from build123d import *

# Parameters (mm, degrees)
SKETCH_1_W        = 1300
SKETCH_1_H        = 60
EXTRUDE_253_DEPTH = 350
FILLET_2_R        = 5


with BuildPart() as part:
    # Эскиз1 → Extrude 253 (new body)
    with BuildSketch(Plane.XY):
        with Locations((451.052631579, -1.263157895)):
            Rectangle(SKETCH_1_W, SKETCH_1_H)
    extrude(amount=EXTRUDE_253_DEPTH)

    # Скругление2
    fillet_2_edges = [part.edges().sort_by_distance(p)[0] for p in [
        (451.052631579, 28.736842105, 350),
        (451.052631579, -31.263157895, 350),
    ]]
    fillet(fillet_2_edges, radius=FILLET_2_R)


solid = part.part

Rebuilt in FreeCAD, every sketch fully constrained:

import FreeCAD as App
import Part
import Sketcher

V = App.Vector
Q = App.Units.Quantity


def edges_at(feature, points):
    """Names of the edges that pass closest to the given points."""
    edges = feature.Shape.Edges
    near = lambda p: min(range(len(edges)), key=lambda i: edges[i].distToShape(Part.Vertex(*p))[0])
    return sorted({f"Edge{near(p) + 1}" for p in points})


def add_polygon(sketch, points):
    """Adds a closed chain of lines whose ends are joined by coincident constraints."""
    first, n = sketch.GeometryCount, len(points)
    for a, b in zip(points, points[1:] + points[:1]):
        sketch.addGeometry(Part.LineSegment(App.Vector(*a, 0), App.Vector(*b, 0)), False)
    for i in range(n):
        sketch.addConstraint(Sketcher.Constraint("Coincident", first + i, 2, first + (i + 1) % n, 1))

doc = App.newDocument("Part")
body = doc.addObject("PartDesign::Body", "Body")

# Sketch on XY plane
sketch1 = doc.addObject("Sketcher::SketchObject", "Sketch")
body.addObject(sketch1)
sketch1.AttachmentSupport = (doc.XY_Plane, [""])
sketch1.MapMode = "FlatFace"
add_polygon(sketch1, [(-199, 29), (-199, -31), (1101, -31), (1101, 29)])  # lines 0-3
sketch1.addConstraint([
    Sketcher.Constraint("Vertical", 0),
    Sketcher.Constraint("Horizontal", 1),
    Sketcher.Constraint("Vertical", 2),
    Sketcher.Constraint("Horizontal", 3),
    Sketcher.Constraint("DistanceX", 1, 1, 1, 2, Q("1300 mm")),
    Sketcher.Constraint("DistanceY", 0, 2, 0, 1, Q("60 mm")),
    Sketcher.Constraint("DistanceX", 0, 2, -1, 1, Q("198.947368 mm")),
    Sketcher.Constraint("DistanceY", 0, 2, -1, 1, Q("31.263158 mm")),
])
pad1 = doc.addObject("PartDesign::Pad", "Pad")
body.addObject(pad1)
pad1.Profile = sketch1
pad1.Length = 350
doc.recompute()

fillet = doc.addObject("PartDesign::Fillet", "Fillet")
body.addObject(fillet)
fillet.Base = (pad1, edges_at(pad1, [(451.053, 28.737, 350), (451.053, -31.263, 350)]))
fillet.Radius = 5

doc.recompute()
